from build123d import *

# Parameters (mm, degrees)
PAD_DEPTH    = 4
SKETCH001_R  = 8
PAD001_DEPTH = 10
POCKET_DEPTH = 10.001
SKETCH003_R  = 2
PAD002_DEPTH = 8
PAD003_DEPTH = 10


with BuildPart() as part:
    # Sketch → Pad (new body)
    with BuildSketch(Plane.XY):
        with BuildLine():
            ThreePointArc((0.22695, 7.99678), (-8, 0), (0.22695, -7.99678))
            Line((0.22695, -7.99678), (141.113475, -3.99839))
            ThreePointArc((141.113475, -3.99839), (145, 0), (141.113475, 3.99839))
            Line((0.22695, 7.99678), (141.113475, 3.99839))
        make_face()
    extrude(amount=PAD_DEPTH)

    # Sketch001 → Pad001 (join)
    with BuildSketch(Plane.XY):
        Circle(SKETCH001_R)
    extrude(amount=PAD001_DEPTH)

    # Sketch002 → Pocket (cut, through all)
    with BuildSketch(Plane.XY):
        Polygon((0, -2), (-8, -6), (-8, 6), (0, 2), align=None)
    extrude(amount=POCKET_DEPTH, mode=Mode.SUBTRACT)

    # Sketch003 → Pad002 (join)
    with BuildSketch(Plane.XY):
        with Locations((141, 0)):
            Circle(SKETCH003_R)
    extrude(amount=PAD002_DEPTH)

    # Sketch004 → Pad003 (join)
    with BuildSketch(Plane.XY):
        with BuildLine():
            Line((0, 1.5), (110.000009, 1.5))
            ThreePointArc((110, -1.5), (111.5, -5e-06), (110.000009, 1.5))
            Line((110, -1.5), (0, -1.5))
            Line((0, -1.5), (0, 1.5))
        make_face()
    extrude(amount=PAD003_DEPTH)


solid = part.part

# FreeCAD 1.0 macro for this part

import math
import FreeCAD as App
import Part
import Sketcher

doc = App.newDocument("Part")
body = doc.addObject("PartDesign::Body", "Body")

# Sketch on XY plane
sketch1 = body.newObject("Sketcher::SketchObject", "Sketch")
sketch1.AttachmentSupport = (doc.getObject("XY_Plane"), [""])
sketch1.MapMode = "FlatFace"
sketch1.addGeometry([
    Part.ArcOfCircle(Part.Circle(App.Vector(0, 0, 0), App.Vector(0, 0, 1), 8), math.radians(88.374371), math.radians(271.625629)),
    Part.LineSegment(App.Vector(0.22695, -7.99678, 0), App.Vector(141.113475, -3.99839, 0)),
    Part.ArcOfCircle(Part.Circle(App.Vector(141, 0, 0), App.Vector(0, 0, 1), 4), math.radians(-88.374374), math.radians(88.374374)),
    Part.LineSegment(App.Vector(141.113475, 3.99839, 0), App.Vector(0.22695, 7.99678, 0)),
], False)
sketch1.addConstraint([
    Sketcher.Constraint("Tangent", 0, 2, 1, 1),
    Sketcher.Constraint("Tangent", 1, 2, 2, 1),
    Sketcher.Constraint("Tangent", 2, 2, 3, 1),
    Sketcher.Constraint("Tangent", 3, 2, 0, 1),
    Sketcher.Constraint("Coincident", 0, 3, -1, 1),
    Sketcher.Constraint("PointOnObject", 2, 3, -1),
    Sketcher.Constraint("Radius", 0, 8.0),
    Sketcher.Constraint("Radius", 2, 4.0),
    Sketcher.Constraint("DistanceX", -1, 1, 2, 3, 141.0),
])
pad1 = body.newObject("PartDesign::Pad", "Pad")
pad1.Profile = sketch1
pad1.Length = 4

# Sketch on XY plane
sketch2 = body.newObject("Sketcher::SketchObject", "Sketch001")
sketch2.AttachmentSupport = (doc.getObject("XY_Plane"), [""])
sketch2.MapMode = "FlatFace"
sketch2.addGeometry(Part.Circle(App.Vector(0, 0, 0), App.Vector(0, 0, 1), 8), False)
sketch2.addConstraint([
    Sketcher.Constraint("Coincident", 0, 3, -1, 1),
    Sketcher.Constraint("Diameter", 0, 16.0),
])
pad2 = body.newObject("PartDesign::Pad", "Pad001")
pad2.Profile = sketch2
pad2.Length = 10

# Sketch on XY plane
sketch3 = body.newObject("Sketcher::SketchObject", "Sketch002")
sketch3.AttachmentSupport = (doc.getObject("XY_Plane"), [""])
sketch3.MapMode = "FlatFace"
sketch3.addGeometry([
    Part.LineSegment(App.Vector(-8, -6, 0), App.Vector(0, -2, 0)),
    Part.LineSegment(App.Vector(0, -2, 0), App.Vector(0, 2, 0)),
    Part.LineSegment(App.Vector(0, 2, 0), App.Vector(-8, 6, 0)),
    Part.LineSegment(App.Vector(-8, 6, 0), App.Vector(-8, -6, 0)),
], False)
sketch3.addConstraint([
    Sketcher.Constraint("Coincident", 0, 2, 1, 1),
    Sketcher.Constraint("Coincident", 1, 2, 2, 1),
    Sketcher.Constraint("Coincident", 2, 2, 3, 1),
    Sketcher.Constraint("Coincident", 3, 2, 0, 1),
    Sketcher.Constraint("Vertical", 1),
    Sketcher.Constraint("Vertical", 3),
    Sketcher.Constraint("Symmetric", 0, 2, 1, 2, -1, 1),
    Sketcher.Constraint("Equal", 0, 2),
    Sketcher.Constraint("DistanceY", 1, 1, 1, 2, 4.0),
    Sketcher.Constraint("DistanceY", 3, 2, 3, 1, 12.0),
    Sketcher.Constraint("DistanceX", 2, 2, -1, 1, 8.0),
])
pocket1 = body.newObject("PartDesign::Pocket", "Pocket")
pocket1.Profile = sketch3
pocket1.Type = "ThroughAll"
pocket1.Reversed = True

# Sketch on XY plane
sketch4 = body.newObject("Sketcher::SketchObject", "Sketch003")
sketch4.AttachmentSupport = (doc.getObject("XY_Plane"), [""])
sketch4.MapMode = "FlatFace"
sketch4.addGeometry(Part.Circle(App.Vector(141, 0, 0), App.Vector(0, 0, 1), 2), False)
sketch4.addConstraint([
    Sketcher.Constraint("PointOnObject", 0, 3, -1),
    Sketcher.Constraint("Diameter", 0, 4.0),
    Sketcher.Constraint("DistanceX", -1, 1, 0, 3, 141.0),
])
pad3 = body.newObject("PartDesign::Pad", "Pad002")
pad3.Profile = sketch4
pad3.Length = 8

# Sketch on XY plane
sketch5 = body.newObject("Sketcher::SketchObject", "Sketch004")
sketch5.AttachmentSupport = (doc.getObject("XY_Plane"), [""])
sketch5.MapMode = "FlatFace"
sketch5.addGeometry([
    Part.LineSegment(App.Vector(110.000009, 1.5, 0), App.Vector(0, 1.5, 0)),
    Part.LineSegment(App.Vector(0, 1.5, 0), App.Vector(0, -1.5, 0)),
    Part.LineSegment(App.Vector(0, -1.5, 0), App.Vector(110, -1.5, 0)),
    Part.ArcOfCircle(Part.Circle(App.Vector(110, 0, 0), App.Vector(0, 0, 1), 1.5), math.radians(-90), math.radians(89.999656)),
], False)
sketch5.addConstraint([
    Sketcher.Constraint("Coincident", 0, 2, 1, 1),
    Sketcher.Constraint("Coincident", 1, 2, 2, 1),
    Sketcher.Constraint("Tangent", 2, 2, 3, 1),
    Sketcher.Constraint("Coincident", 3, 2, 0, 1),
    Sketcher.Constraint("Horizontal", 0),
    Sketcher.Constraint("Vertical", 1),
    Sketcher.Constraint("Horizontal", 2),
    Sketcher.Constraint("Symmetric", 0, 2, 1, 2, -1, 1),
    Sketcher.Constraint("Radius", 3, 1.5),
    Sketcher.Constraint("DistanceX", 2, 1, 2, 2, 110.0),
    Sketcher.Constraint("DistanceX", 0, 2, 0, 1, 110.000009),
])
pad4 = body.newObject("PartDesign::Pad", "Pad003")
pad4.Profile = sketch5
pad4.Length = 10

doc.recompute()
